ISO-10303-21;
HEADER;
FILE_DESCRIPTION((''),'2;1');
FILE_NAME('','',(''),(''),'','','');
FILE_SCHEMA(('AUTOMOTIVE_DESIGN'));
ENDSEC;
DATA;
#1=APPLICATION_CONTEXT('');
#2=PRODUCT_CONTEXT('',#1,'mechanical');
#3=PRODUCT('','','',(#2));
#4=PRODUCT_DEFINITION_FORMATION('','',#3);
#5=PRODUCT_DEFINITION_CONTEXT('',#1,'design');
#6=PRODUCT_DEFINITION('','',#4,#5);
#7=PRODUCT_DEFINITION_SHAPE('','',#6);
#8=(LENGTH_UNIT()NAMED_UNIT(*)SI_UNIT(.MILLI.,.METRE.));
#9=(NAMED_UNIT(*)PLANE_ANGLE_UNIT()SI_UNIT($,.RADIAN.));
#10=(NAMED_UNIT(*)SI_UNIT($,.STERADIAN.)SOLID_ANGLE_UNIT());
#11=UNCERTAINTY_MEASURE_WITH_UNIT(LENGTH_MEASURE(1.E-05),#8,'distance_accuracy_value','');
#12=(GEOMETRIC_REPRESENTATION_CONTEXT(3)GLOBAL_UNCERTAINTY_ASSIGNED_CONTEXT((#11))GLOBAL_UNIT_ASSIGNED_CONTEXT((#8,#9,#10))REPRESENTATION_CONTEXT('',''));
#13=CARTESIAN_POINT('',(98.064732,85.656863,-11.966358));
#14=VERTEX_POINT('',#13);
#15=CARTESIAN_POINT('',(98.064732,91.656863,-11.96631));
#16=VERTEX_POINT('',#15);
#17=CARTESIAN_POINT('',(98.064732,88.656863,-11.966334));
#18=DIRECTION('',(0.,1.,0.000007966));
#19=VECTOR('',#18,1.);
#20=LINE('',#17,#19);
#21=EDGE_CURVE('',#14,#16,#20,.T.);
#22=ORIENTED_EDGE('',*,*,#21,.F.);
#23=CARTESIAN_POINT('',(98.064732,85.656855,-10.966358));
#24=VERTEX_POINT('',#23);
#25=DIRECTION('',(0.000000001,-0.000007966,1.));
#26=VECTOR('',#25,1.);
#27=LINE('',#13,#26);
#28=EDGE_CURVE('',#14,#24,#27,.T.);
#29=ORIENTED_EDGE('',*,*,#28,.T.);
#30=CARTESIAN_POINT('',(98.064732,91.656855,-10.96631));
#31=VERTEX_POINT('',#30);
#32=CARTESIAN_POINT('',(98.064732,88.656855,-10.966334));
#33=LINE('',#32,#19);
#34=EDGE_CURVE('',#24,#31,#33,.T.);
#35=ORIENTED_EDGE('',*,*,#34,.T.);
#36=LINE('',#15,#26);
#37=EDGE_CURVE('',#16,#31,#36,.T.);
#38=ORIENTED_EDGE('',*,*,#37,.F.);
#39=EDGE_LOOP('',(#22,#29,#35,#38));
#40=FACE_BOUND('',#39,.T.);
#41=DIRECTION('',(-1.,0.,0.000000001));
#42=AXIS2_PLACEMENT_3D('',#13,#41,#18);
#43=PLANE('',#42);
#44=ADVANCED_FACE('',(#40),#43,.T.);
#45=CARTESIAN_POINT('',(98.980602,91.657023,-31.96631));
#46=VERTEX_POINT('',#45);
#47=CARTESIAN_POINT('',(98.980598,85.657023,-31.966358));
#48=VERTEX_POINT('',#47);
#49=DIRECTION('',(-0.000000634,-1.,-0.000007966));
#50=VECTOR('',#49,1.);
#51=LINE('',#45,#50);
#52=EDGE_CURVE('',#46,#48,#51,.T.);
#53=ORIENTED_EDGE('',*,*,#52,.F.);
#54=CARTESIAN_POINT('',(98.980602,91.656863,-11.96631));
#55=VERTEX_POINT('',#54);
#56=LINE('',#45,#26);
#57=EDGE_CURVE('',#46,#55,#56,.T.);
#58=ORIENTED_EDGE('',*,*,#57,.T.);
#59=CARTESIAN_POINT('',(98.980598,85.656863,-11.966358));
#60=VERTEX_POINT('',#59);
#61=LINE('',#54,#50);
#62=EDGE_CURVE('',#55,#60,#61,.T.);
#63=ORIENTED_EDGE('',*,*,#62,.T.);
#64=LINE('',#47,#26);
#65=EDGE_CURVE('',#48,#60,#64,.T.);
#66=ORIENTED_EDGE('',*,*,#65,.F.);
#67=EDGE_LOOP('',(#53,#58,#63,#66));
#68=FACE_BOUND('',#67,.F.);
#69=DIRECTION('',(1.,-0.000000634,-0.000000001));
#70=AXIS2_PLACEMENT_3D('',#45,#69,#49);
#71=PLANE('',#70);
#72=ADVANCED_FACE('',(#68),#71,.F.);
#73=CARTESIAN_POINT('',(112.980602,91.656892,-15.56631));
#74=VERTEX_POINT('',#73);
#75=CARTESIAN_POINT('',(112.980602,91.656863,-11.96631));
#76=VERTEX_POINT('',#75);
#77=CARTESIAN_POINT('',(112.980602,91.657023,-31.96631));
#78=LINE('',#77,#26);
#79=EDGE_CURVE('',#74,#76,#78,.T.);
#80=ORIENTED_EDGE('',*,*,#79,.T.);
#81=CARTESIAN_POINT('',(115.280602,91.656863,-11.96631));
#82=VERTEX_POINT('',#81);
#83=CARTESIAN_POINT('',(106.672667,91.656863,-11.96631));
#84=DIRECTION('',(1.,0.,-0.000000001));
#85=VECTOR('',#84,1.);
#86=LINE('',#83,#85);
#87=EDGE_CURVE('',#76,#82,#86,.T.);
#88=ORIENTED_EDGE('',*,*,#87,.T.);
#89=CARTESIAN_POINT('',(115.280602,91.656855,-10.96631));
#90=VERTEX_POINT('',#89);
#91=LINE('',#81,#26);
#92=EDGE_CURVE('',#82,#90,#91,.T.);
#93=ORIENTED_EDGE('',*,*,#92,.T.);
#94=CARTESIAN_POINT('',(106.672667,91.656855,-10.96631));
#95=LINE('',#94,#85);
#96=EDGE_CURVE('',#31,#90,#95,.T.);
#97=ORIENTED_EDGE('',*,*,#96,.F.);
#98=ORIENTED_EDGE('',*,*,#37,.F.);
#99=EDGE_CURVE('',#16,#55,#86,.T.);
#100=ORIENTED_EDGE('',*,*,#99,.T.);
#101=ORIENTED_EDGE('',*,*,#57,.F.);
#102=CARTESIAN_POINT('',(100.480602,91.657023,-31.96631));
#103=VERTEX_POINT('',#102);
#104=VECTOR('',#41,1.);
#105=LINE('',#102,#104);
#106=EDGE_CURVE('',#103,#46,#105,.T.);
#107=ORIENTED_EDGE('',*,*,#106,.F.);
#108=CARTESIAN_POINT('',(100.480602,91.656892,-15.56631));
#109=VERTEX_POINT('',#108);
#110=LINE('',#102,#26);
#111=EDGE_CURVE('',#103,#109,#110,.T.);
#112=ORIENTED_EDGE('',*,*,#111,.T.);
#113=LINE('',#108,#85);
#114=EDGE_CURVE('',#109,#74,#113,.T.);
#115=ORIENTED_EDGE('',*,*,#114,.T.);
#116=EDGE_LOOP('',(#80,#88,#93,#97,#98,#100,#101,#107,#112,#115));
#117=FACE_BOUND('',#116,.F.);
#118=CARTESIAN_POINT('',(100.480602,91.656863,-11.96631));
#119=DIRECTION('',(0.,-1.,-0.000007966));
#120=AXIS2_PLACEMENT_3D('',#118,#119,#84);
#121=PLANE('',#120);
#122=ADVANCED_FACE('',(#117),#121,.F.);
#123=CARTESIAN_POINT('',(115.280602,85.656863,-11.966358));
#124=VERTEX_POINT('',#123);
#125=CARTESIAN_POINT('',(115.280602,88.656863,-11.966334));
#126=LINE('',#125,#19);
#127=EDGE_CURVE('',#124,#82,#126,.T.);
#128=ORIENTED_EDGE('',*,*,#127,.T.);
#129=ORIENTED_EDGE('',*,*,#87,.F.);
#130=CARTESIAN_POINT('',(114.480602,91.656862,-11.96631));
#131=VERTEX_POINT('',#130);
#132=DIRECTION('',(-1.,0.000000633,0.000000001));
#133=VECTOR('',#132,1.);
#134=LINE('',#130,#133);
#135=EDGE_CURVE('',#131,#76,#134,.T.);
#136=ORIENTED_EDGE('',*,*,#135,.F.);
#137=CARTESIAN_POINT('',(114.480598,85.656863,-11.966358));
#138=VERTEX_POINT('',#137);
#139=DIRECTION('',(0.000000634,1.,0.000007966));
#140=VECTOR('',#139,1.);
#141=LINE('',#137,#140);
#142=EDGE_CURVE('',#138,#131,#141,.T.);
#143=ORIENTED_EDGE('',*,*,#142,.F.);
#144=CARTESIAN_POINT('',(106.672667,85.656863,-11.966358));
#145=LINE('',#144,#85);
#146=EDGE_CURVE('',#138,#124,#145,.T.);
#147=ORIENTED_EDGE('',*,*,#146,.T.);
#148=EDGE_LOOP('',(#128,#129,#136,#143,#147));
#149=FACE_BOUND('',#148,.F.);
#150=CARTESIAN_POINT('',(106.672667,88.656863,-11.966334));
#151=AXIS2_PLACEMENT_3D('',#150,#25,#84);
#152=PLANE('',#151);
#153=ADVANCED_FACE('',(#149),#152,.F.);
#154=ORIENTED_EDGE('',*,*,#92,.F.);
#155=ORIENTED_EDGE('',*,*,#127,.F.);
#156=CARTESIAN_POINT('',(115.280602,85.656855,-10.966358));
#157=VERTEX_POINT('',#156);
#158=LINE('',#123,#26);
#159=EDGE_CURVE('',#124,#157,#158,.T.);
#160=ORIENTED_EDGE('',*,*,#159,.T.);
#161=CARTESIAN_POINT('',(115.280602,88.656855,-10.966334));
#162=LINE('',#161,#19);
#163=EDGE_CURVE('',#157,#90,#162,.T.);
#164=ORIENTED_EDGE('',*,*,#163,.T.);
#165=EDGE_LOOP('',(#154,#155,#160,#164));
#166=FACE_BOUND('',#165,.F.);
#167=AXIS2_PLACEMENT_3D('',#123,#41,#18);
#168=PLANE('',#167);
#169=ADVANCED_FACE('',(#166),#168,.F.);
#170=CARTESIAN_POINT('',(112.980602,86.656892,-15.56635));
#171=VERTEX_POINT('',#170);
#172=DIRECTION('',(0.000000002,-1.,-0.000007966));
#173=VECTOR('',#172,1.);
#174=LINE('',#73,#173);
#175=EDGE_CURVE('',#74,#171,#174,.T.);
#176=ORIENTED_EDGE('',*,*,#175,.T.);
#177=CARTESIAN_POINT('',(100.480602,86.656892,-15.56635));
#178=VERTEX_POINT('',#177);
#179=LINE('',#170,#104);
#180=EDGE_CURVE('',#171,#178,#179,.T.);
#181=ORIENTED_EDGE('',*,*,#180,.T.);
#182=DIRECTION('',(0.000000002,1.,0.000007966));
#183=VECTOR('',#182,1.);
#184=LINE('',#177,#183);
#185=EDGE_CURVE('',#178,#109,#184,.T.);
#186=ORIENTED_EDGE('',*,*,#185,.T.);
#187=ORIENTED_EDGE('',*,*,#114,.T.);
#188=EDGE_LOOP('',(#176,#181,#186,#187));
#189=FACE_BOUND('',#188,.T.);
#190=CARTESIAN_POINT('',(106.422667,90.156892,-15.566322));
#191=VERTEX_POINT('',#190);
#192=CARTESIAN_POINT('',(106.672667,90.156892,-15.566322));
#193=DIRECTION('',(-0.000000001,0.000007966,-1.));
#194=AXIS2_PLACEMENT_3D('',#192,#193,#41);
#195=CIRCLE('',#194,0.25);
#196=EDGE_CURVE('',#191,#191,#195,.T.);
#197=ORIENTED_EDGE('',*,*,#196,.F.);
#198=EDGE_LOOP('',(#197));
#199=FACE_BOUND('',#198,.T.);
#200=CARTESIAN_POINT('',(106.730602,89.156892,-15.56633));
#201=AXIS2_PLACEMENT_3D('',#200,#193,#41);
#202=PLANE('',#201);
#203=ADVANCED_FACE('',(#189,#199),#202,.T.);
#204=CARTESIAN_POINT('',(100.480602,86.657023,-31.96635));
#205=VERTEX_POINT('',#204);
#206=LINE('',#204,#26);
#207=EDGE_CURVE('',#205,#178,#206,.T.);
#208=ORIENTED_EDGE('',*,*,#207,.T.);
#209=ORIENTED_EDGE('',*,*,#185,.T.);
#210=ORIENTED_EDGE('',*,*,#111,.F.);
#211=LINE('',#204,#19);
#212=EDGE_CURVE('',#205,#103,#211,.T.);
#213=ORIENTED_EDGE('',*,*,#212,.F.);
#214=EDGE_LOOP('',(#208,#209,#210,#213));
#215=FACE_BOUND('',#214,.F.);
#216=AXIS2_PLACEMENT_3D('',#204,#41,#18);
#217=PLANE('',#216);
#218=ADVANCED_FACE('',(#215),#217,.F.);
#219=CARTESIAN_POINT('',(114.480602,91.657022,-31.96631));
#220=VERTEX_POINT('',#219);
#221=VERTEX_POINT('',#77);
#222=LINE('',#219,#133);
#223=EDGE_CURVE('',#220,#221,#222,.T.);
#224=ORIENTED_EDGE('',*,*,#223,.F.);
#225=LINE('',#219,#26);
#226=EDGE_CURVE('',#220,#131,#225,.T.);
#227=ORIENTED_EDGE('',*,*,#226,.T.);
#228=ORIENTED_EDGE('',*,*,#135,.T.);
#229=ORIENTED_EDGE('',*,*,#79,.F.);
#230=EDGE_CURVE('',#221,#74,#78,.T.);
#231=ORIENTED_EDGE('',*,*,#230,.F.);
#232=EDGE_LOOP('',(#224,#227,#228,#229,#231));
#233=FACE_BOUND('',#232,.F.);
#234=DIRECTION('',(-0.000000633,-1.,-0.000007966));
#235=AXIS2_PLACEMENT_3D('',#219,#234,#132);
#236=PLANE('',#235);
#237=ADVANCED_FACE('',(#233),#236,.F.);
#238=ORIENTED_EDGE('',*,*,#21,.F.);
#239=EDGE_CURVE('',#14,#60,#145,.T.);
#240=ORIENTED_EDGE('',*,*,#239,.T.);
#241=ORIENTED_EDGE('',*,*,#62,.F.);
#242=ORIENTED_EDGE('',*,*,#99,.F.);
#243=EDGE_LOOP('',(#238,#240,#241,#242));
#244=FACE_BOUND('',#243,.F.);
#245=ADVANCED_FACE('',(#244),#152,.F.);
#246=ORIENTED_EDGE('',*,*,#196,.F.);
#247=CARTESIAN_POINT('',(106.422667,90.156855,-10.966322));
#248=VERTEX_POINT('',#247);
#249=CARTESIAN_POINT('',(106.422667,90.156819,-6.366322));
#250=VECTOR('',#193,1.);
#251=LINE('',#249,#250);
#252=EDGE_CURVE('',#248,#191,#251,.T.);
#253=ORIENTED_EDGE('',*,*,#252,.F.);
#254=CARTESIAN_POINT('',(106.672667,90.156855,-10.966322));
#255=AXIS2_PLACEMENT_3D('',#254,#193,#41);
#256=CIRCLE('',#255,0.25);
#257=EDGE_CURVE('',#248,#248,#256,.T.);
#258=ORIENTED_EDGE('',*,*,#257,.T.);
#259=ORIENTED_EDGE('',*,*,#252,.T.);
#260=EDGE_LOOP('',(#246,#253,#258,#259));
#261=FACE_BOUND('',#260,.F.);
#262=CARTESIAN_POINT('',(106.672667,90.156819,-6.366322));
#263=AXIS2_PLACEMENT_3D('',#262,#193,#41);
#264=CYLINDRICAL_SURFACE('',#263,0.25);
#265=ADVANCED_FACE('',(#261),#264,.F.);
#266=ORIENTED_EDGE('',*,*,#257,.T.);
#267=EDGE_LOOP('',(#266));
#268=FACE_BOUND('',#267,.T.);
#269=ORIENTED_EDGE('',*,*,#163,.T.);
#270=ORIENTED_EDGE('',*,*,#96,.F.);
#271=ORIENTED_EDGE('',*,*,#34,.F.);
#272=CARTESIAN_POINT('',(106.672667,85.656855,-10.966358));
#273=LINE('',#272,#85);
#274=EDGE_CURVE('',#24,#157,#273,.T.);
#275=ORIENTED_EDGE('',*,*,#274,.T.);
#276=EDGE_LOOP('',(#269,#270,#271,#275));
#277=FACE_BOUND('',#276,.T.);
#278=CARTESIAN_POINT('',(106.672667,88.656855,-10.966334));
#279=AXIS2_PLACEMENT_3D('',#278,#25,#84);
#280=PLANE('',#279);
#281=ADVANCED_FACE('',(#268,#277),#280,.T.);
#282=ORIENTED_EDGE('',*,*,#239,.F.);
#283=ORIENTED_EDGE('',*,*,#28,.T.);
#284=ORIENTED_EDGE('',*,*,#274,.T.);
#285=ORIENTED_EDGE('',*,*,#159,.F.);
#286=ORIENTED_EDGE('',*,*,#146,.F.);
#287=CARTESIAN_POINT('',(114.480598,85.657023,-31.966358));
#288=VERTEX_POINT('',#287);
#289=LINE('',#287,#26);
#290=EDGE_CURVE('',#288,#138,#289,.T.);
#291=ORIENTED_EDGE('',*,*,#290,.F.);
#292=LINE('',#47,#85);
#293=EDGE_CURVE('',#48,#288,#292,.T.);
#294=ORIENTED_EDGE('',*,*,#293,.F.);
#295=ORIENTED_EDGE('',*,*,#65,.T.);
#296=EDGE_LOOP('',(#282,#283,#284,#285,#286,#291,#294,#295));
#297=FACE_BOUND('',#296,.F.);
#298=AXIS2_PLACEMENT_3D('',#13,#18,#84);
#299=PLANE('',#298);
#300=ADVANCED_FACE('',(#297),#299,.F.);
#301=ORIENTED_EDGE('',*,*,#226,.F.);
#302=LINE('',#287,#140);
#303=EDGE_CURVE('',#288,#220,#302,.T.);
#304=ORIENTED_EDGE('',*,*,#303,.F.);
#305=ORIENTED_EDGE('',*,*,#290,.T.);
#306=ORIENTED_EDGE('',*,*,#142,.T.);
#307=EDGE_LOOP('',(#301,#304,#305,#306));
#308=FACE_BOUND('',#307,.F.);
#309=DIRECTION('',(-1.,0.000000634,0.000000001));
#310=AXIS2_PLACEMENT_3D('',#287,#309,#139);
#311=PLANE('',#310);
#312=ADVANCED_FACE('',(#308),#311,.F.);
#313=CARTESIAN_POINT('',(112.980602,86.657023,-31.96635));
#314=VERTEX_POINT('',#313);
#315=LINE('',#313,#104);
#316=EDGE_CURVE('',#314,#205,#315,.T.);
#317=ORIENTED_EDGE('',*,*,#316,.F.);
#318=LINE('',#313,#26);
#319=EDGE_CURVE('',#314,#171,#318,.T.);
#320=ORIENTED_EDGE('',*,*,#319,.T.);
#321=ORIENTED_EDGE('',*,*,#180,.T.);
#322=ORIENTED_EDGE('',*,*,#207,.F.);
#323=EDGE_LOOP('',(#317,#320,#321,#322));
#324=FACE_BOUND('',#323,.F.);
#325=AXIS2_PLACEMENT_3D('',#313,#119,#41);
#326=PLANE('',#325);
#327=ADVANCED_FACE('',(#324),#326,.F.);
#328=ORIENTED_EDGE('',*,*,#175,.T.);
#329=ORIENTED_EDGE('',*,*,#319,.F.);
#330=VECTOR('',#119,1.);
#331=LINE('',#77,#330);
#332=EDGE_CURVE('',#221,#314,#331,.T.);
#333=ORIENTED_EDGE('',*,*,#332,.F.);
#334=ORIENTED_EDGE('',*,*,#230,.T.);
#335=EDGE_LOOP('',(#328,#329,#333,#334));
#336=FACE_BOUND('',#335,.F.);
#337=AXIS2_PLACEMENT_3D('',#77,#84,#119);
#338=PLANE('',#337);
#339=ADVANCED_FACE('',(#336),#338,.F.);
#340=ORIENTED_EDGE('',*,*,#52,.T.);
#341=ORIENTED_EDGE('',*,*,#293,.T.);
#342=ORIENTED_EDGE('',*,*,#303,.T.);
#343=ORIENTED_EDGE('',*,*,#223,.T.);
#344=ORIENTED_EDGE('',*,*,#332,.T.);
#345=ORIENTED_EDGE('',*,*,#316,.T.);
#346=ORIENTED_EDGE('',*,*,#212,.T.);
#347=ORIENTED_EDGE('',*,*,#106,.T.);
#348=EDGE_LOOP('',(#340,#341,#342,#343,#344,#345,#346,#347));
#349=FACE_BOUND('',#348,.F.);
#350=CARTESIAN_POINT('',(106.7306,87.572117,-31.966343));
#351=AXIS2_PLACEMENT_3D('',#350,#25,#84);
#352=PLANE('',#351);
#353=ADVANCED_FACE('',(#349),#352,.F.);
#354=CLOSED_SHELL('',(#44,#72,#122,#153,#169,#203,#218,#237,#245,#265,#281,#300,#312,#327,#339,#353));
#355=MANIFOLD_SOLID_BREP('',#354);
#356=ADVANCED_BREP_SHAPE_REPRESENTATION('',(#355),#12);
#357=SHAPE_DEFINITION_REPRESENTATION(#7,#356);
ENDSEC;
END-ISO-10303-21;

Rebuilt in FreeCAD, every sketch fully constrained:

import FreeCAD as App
import Part
import Sketcher

V = App.Vector
Q = App.Units.Quantity


def add_polygon(sketch, points):
    """Adds a closed chain of lines whose ends are joined by coincident constraints."""
    first, n = sketch.GeometryCount, len(points)
    for a, b in zip(points, points[1:] + points[:1]):
        sketch.addGeometry(Part.LineSegment(App.Vector(*a, 0), App.Vector(*b, 0)), False)
    for i in range(n):
        sketch.addConstraint(Sketcher.Constraint("Coincident", first + i, 2, first + (i + 1) % n, 1))

doc = App.newDocument("Part")
body = doc.addObject("PartDesign::Body", "Body")

# Sketch on XY plane
sketch1 = body.newObject("Sketcher::SketchObject", "Sketch")
sketch1.AttachmentSupport = (doc.getObject("XY_Plane"), [""])
sketch1.MapMode = "FlatFace"
sketch1.AttachmentOffset = App.Placement(V(0, 0, -31.96704), App.Rotation())
add_polygon(sketch1, [(98.980598, 85.657023), (114.480598, 85.657023), (114.480602, 91.657022), (112.980602, 91.657023), (112.980602, 86.657023), (100.480602, 86.657023), (100.480602, 91.657023), (98.980602, 91.657023)])  # lines 0-7
sketch1.addConstraint(Sketcher.Constraint("Horizontal", 0))
sketch1.addConstraint(Sketcher.Constraint("Horizontal", 2))
sketch1.addConstraint(Sketcher.Constraint("Vertical", 3))
sketch1.addConstraint(Sketcher.Constraint("Horizontal", 4))
sketch1.addConstraint(Sketcher.Constraint("Vertical", 5))
sketch1.addConstraint(Sketcher.Constraint("Horizontal", 6))
sketch1.addConstraint(Sketcher.Constraint("Parallel", 1, 7))
sketch1.addConstraint(Sketcher.Constraint("Horizontal", 2, 2, 5, 2))
sketch1.addConstraint(Sketcher.Constraint("Equal", 2, 6))
sketch1.addConstraint(Sketcher.Constraint("DistanceY", 3, 2, 3, 1, Q("5 mm")))
sketch1.addConstraint(Sketcher.Constraint("Distance", 1, Q("5.999999 mm")))
sketch1.addConstraint(Sketcher.Constraint("DistanceX", 0, 1, 0, 2, Q("15.5 mm")))
sketch1.addConstraint(Sketcher.Constraint("DistanceX", 2, 2, 2, 1, Q("1.5 mm")))
sketch1.addConstraint(Sketcher.Constraint("DistanceX", -1, 1, 0, 2, Q("114.480598 mm")))
sketch1.addConstraint(Sketcher.Constraint("DistanceX", -1, 1, 1, 2, Q("114.480602 mm")))
sketch1.addConstraint(Sketcher.Constraint("DistanceY", -1, 1, 1, 2, Q("91.657022 mm")))
pad1 = body.newObject("PartDesign::Pad", "Pad")
pad1.Profile = sketch1
pad1.Length = 20

# Sketch on XY plane
sketch2 = body.newObject("Sketcher::SketchObject", "Sketch001")
sketch2.AttachmentSupport = (doc.getObject("XY_Plane"), [""])
sketch2.MapMode = "FlatFace"
sketch2.AttachmentOffset = App.Placement(V(0, 0, -11.96704), App.Rotation())
add_polygon(sketch2, [(98.064732, 91.656863), (98.064732, 85.656863), (115.280602, 85.656863), (115.280602, 91.656863)])  # lines 0-3
sketch2.addConstraint(Sketcher.Constraint("Vertical", 0))
sketch2.addConstraint(Sketcher.Constraint("Horizontal", 1))
sketch2.addConstraint(Sketcher.Constraint("Vertical", 2))
sketch2.addConstraint(Sketcher.Constraint("Horizontal", 3))
sketch2.addConstraint(Sketcher.Constraint("DistanceY", 0, 2, 0, 1, Q("6 mm")))
sketch2.addConstraint(Sketcher.Constraint("DistanceX", 1, 1, 1, 2, Q("17.21587 mm")))
sketch2.addConstraint(Sketcher.Constraint("DistanceX", -1, 1, 1, 2, Q("115.280602 mm")))
sketch2.addConstraint(Sketcher.Constraint("DistanceY", -1, 1, 0, 2, Q("85.656863 mm")))
pad2 = body.newObject("PartDesign::Pad", "Pad001")
pad2.Profile = sketch2
pad2.Length = 1

# Sketch on XY plane
sketch3 = body.newObject("Sketcher::SketchObject", "Sketch002")
sketch3.AttachmentSupport = (doc.getObject("XY_Plane"), [""])
sketch3.MapMode = "FlatFace"
sketch3.AttachmentOffset = App.Placement(V(0, 0, -11.96704), App.Rotation())
add_polygon(sketch3, [(112.980602, 91.656863), (112.980602, 86.656863), (100.480602, 86.656863), (100.480602, 91.656863)])  # lines 0-3
sketch3.addConstraint(Sketcher.Constraint("Vertical", 0))
sketch3.addConstraint(Sketcher.Constraint("Horizontal", 1))
sketch3.addConstraint(Sketcher.Constraint("Vertical", 2))
sketch3.addConstraint(Sketcher.Constraint("Horizontal", 3))
sketch3.addConstraint(Sketcher.Constraint("DistanceY", 0, 2, 0, 1, Q("5 mm")))
sketch3.addConstraint(Sketcher.Constraint("DistanceX", 1, 2, 1, 1, Q("12.5 mm")))
sketch3.addConstraint(Sketcher.Constraint("DistanceX", -1, 1, 0, 2, Q("112.980602 mm")))
sketch3.addConstraint(Sketcher.Constraint("DistanceY", -1, 1, 0, 2, Q("86.656863 mm")))
pad3 = body.newObject("PartDesign::Pad", "Pad002")
pad3.Profile = sketch3
pad3.Length = 3.6
pad3.Reversed = True

# Sketch on XY plane
sketch4 = body.newObject("Sketcher::SketchObject", "Sketch003")
sketch4.AttachmentSupport = (doc.getObject("XY_Plane"), [""])
sketch4.MapMode = "FlatFace"
sketch4.AttachmentOffset = App.Placement(V(0, 0, -10.96704), App.Rotation())
sketch4.addGeometry(Part.Circle(V(106.672667, 90.156855, 0), V(0, 0, 1), 0.25), False)
sketch4.addConstraint(Sketcher.Constraint("Diameter", 0, Q("0.5 mm")))
sketch4.addConstraint(Sketcher.Constraint("DistanceX", -1, 1, 0, 3, Q("106.672667 mm")))
sketch4.addConstraint(Sketcher.Constraint("DistanceY", -1, 1, 0, 3, Q("90.156855 mm")))
doc.recompute()
hole = body.newObject("PartDesign::Hole", "Hole")
hole.Profile = sketch4
hole.ThreadType = "None"
hole.Diameter = 0.5
hole.DepthType = "Dimension"
hole.Depth = 4.6
hole.DrillPoint = "Flat"

doc.recompute()
